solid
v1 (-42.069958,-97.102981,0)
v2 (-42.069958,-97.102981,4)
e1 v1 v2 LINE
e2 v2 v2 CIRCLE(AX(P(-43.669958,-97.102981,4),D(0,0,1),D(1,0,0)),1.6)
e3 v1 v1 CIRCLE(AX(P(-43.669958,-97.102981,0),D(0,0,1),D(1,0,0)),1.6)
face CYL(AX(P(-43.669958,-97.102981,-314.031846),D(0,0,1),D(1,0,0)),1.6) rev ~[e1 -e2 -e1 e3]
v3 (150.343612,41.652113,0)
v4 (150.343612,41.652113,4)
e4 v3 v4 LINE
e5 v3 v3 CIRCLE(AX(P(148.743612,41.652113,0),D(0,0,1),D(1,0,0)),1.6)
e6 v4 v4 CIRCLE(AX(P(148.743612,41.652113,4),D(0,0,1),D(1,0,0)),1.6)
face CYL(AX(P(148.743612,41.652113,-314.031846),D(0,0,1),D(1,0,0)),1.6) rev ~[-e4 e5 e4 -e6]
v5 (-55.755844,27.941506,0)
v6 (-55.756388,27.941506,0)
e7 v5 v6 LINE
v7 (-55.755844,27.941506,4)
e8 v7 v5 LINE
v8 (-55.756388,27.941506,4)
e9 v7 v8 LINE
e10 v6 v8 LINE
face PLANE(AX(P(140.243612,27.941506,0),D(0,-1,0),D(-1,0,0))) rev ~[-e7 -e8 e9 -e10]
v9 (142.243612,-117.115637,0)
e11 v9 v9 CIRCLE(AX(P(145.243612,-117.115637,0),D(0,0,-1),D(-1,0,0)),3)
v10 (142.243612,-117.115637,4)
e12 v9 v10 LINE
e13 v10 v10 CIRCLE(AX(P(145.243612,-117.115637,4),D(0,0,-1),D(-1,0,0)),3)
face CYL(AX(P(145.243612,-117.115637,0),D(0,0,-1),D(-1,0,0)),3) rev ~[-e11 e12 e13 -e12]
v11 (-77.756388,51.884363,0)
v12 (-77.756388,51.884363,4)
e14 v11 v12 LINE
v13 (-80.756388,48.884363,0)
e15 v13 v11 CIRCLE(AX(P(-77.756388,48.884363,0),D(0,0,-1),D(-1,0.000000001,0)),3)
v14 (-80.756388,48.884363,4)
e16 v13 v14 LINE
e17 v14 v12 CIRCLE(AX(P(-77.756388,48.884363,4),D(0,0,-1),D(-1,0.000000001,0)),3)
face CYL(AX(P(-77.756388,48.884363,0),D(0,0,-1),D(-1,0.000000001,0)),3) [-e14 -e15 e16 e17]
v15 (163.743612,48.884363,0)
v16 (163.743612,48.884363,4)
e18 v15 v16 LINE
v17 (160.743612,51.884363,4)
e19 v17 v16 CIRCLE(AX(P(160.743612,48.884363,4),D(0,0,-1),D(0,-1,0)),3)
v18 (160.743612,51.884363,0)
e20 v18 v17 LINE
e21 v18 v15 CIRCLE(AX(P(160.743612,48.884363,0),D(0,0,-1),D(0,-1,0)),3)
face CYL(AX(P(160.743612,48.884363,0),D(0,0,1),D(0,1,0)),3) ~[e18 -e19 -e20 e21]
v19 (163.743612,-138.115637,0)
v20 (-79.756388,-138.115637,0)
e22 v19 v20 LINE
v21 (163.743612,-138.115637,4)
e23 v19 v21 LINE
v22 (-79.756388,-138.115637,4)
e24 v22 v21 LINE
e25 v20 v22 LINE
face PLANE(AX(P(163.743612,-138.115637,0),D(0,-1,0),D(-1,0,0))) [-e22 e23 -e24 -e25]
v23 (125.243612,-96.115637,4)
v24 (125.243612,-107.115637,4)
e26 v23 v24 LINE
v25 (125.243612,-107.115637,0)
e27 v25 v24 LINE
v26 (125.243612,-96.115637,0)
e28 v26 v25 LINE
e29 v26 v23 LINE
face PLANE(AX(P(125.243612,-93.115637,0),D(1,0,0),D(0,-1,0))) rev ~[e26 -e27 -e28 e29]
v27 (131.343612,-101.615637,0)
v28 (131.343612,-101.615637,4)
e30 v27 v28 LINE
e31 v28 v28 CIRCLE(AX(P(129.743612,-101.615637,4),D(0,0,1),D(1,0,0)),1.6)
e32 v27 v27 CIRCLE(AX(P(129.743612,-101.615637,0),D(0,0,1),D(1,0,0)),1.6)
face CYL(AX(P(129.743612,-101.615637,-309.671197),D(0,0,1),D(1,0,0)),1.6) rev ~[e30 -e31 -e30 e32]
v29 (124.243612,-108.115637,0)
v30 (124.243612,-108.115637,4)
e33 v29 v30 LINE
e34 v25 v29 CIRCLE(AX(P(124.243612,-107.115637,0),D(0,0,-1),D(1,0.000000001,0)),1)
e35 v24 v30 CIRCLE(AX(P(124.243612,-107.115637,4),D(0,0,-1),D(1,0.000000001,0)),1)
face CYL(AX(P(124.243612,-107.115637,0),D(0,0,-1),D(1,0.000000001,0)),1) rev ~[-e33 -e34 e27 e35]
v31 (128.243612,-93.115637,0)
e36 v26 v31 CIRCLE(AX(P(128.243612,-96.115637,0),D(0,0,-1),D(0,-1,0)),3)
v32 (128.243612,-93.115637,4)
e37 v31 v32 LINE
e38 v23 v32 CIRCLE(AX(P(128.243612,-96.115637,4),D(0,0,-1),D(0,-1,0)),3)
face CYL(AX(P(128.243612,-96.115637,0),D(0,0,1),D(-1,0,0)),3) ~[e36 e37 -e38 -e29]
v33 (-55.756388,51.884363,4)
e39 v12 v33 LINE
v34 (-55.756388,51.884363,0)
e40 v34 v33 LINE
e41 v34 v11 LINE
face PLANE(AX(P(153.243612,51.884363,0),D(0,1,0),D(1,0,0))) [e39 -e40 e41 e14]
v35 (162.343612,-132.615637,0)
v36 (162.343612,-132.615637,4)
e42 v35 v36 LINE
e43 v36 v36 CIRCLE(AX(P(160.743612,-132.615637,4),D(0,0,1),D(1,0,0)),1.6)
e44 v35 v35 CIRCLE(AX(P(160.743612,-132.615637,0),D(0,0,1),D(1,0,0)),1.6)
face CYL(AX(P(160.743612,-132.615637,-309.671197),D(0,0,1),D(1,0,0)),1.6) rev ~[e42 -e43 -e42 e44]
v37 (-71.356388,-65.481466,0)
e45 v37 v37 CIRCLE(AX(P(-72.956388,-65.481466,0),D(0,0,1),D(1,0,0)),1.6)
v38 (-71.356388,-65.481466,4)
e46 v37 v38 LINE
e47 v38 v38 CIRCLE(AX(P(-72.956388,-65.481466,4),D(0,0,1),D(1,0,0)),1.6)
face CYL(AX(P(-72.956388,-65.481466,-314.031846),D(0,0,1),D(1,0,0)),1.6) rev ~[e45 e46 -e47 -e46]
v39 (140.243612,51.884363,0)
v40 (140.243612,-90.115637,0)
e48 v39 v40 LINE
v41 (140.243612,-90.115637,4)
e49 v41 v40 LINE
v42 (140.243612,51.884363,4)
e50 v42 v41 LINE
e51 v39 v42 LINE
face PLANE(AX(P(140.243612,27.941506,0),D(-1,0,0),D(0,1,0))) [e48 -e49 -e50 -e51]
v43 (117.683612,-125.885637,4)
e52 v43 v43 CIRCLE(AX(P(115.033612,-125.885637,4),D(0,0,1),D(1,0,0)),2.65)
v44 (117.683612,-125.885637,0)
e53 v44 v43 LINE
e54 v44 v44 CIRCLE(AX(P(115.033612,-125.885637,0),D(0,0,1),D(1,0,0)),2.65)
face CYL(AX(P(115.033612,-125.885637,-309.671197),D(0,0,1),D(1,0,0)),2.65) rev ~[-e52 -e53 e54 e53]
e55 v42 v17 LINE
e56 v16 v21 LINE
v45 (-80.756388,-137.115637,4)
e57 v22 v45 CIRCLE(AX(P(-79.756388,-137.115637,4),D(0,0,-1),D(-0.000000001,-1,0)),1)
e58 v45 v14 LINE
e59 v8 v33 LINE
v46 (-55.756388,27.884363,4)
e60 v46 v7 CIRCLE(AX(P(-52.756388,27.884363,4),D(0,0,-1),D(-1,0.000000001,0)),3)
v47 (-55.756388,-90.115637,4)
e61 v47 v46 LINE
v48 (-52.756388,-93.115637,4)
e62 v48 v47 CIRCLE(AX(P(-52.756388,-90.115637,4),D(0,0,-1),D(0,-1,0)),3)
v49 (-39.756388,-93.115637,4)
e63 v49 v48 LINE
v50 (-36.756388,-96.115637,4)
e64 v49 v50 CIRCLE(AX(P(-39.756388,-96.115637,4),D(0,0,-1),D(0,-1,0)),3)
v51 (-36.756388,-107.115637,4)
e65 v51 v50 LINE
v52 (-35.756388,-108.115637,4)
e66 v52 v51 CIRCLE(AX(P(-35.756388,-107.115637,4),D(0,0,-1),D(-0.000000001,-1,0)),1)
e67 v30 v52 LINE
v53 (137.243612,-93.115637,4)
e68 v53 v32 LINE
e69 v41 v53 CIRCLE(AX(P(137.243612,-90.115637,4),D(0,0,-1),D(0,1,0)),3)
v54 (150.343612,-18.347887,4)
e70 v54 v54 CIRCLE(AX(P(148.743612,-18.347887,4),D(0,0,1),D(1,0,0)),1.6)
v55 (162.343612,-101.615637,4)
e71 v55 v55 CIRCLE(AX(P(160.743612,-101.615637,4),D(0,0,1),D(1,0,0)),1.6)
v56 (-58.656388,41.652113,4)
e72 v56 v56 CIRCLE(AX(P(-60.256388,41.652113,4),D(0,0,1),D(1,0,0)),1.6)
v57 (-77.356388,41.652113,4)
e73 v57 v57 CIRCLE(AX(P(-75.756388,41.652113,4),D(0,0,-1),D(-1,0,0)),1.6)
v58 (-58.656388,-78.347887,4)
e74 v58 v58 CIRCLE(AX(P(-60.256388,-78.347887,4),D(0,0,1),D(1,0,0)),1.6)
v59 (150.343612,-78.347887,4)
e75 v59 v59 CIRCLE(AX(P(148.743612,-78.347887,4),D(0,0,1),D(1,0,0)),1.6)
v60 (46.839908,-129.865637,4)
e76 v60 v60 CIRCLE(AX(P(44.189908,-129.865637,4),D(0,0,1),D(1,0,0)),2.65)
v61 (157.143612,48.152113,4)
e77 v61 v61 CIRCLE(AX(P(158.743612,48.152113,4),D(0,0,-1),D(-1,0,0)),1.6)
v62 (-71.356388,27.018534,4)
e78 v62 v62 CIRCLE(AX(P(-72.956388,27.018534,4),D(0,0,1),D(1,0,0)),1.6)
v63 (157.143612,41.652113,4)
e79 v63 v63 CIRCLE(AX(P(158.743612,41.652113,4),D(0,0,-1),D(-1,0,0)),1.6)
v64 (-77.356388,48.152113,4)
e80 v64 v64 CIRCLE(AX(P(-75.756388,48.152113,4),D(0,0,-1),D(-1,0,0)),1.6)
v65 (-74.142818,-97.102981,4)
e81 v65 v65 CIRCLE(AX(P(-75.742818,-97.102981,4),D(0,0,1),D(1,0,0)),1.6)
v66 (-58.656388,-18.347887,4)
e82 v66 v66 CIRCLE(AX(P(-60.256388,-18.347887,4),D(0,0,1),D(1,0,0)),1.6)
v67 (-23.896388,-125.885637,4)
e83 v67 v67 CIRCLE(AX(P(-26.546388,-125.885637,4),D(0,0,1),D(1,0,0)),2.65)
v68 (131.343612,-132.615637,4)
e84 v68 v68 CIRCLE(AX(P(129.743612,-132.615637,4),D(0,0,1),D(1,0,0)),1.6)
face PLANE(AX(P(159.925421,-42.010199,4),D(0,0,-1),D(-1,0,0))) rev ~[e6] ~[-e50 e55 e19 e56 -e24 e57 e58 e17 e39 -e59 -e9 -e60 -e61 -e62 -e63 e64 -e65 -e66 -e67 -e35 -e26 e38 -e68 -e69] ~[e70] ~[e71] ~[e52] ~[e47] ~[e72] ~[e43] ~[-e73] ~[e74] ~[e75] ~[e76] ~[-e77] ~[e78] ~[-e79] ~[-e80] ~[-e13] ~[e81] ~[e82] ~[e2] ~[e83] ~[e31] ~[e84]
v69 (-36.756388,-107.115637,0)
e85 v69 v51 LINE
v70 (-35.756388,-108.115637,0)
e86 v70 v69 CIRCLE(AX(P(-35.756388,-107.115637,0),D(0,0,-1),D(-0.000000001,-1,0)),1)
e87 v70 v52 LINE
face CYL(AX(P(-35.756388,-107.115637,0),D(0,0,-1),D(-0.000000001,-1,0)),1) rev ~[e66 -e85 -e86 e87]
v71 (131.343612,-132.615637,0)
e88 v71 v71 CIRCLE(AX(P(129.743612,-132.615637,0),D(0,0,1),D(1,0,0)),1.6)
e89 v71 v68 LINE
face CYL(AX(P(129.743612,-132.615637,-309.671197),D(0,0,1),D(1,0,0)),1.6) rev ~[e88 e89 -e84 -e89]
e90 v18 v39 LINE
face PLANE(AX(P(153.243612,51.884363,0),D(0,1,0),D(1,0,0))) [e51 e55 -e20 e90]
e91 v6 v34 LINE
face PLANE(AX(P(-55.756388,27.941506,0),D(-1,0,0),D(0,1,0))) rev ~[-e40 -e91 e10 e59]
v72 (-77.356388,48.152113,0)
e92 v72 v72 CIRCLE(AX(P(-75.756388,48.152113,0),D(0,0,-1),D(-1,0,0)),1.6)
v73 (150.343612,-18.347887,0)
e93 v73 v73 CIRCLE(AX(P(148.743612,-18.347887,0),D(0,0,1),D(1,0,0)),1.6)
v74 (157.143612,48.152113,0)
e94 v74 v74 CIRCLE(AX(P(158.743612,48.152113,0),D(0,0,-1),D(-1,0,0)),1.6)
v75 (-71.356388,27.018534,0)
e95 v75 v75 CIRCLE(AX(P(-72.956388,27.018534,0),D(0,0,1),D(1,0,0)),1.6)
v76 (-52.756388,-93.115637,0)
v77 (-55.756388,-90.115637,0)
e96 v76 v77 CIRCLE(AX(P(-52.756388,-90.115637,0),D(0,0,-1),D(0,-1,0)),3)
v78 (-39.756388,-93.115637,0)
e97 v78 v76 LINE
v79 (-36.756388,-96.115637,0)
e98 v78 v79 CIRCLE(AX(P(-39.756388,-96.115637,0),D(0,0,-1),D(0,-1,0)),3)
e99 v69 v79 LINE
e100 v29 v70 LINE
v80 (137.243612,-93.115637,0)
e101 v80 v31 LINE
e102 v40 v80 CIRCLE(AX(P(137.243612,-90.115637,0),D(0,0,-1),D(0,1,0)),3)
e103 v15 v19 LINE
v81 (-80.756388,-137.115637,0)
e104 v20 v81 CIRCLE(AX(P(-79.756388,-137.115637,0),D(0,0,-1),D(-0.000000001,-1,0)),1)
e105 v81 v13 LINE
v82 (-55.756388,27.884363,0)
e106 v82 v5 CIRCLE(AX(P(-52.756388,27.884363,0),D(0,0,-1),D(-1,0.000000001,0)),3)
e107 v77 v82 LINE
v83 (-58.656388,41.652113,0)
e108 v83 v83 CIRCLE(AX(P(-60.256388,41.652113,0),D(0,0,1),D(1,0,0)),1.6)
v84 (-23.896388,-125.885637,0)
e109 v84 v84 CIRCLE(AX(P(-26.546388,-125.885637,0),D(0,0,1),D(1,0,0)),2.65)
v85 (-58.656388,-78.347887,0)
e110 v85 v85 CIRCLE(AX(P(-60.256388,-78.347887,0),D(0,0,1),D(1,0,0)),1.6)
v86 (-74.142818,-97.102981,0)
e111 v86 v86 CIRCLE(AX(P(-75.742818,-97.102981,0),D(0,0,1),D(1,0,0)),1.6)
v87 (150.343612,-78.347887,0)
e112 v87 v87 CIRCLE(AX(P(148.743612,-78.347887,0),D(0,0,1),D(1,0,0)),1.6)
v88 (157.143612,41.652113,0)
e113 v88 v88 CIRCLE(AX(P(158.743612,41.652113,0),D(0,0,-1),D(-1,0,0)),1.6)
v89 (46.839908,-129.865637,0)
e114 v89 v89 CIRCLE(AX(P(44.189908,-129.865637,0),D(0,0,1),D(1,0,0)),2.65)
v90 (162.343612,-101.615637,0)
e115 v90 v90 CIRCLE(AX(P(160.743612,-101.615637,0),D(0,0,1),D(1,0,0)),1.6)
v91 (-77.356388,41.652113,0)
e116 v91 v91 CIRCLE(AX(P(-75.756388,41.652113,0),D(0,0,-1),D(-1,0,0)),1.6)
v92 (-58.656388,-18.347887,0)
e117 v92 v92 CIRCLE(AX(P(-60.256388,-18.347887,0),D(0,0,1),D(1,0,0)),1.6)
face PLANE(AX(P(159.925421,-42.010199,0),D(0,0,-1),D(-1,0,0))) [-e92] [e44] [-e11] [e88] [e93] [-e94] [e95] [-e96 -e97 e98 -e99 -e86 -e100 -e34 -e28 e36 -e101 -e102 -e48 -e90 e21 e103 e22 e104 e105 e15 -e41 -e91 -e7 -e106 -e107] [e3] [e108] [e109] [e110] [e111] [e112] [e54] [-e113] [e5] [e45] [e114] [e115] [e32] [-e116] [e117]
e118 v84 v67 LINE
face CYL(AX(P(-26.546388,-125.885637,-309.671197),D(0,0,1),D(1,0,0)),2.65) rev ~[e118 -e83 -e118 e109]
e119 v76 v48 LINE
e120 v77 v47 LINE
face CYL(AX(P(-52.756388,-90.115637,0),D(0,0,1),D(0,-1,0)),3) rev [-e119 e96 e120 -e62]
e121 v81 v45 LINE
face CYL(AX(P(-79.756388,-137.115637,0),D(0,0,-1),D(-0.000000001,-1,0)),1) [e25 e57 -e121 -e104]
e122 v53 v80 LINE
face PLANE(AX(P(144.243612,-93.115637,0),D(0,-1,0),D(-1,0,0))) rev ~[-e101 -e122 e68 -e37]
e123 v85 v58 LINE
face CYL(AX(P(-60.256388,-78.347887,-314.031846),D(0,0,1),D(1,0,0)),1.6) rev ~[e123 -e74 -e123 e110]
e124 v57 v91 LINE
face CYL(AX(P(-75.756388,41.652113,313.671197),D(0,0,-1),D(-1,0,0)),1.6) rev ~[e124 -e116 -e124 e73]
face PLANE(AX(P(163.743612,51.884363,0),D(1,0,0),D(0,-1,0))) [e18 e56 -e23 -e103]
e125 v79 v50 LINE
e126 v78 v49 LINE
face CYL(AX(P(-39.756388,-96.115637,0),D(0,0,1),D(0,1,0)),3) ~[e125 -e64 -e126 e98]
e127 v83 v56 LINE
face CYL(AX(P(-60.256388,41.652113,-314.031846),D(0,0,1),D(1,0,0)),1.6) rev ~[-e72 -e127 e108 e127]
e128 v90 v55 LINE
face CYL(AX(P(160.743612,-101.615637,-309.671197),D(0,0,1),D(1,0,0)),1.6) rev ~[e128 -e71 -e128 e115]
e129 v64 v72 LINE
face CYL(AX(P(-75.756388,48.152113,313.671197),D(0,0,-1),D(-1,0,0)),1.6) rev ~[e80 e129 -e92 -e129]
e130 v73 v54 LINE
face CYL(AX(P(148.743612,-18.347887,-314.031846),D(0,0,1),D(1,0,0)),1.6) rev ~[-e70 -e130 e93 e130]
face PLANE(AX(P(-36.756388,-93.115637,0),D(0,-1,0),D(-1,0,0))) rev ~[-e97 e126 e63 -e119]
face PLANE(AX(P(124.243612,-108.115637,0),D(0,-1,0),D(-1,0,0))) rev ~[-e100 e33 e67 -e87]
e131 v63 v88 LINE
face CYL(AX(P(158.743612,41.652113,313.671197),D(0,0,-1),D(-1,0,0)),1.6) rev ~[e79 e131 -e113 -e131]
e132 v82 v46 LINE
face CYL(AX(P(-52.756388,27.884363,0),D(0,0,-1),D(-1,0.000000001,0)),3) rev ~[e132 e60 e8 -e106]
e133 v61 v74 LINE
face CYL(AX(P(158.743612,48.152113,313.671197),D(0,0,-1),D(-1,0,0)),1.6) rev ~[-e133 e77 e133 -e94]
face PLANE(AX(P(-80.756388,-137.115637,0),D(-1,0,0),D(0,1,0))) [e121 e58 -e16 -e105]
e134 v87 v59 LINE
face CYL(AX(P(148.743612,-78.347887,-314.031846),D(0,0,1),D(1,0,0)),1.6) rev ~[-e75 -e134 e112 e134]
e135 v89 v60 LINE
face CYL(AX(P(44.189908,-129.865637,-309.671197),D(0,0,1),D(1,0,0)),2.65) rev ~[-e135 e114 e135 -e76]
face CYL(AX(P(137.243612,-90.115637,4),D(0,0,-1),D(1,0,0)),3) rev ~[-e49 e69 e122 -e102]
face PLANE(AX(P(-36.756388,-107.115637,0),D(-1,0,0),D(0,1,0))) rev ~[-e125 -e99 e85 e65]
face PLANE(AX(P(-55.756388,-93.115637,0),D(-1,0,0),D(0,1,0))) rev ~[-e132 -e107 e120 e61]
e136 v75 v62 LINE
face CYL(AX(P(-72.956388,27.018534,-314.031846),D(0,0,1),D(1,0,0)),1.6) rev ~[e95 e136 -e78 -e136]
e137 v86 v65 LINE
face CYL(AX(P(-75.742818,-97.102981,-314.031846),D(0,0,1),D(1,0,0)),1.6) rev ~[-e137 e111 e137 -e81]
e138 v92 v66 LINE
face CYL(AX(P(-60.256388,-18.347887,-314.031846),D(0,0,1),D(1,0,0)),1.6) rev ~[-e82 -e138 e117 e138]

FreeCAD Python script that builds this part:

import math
import FreeCAD as App
import Part
import Sketcher

V = App.Vector


def edges_at(feature, points):
    """Names of the edges that pass closest to the given points."""
    edges = feature.Shape.Edges
    near = lambda p: min(range(len(edges)), key=lambda i: edges[i].distToShape(Part.Vertex(*p))[0])
    return sorted({f"Edge{near(p) + 1}" for p in points})


def add_polygon(sketch, points):
    """Adds a closed chain of lines whose ends are joined by coincident constraints."""
    first, n = sketch.GeometryCount, len(points)
    for a, b in zip(points, points[1:] + points[:1]):
        sketch.addGeometry(Part.LineSegment(App.Vector(*a, 0), App.Vector(*b, 0)), False)
    for i in range(n):
        sketch.addConstraint(Sketcher.Constraint("Coincident", first + i, 2, first + (i + 1) % n, 1))

doc = App.newDocument("Part")
params = doc.addObject("Spreadsheet::Sheet", "Params")
for row, (alias, value) in enumerate([
    ("sketch1_radius", "1 mm"),
    ("sketch1_radius2", "3 mm"),
    ("sketch1_width", "248 mm"),
    ("sketch1_width2", "19 mm"),
    ("sketch1_width3", "194 mm"),
    ("pad1_length", "4 mm"),
    ("sketch2_diameter", "3.2 mm"),
    ("hole_diameter", "3.2 mm"),
    ("fillet_radius", "3 mm"),
    ("sketch3_diameter", "3.2 mm"),
    ("hole2_diameter", "3.2 mm"),
    ("sketch4_diameter", "2.87 mm"),
    ("hole3_diameter", "2.87 mm"),
    ("sketch5_diameter", "3.2 mm"),
    ("hole4_diameter", "3.2 mm"),
    ("sketch6_height", "190 mm"),
    ("pocket1_length", "10 mm"),
    ("sketch7_radius", "3 mm"),
    ("pad2_length", "4 mm"),
    ("fillet2_radius", "3 mm"),
    ("sketch8_radius", "3 mm"),
    ("sketch8_height", "187 mm"),
    ("sketch8_width", "10.5 mm"),
    ("pad3_length", "4 mm"),
    ("sketch9_diameter", "3.2 mm"),
    ("hole5_diameter", "3.2 mm"),
    ("fillet3_radius", "3 mm"),
    ("sketch10_diameter", "5.3 mm"),
    ("hole6_diameter", "5.3 mm"),
    ("sketch11_diameter", "6 mm"),
    ("sketch12_width", "196 mm"),
    ("pocket3_length", "5 mm"),
    ("sketch13_diameter", "3.2 mm"),
    ("hole7_diameter", "3.2 mm"),
], start=1):
    params.set(f"A{row}", alias)
    params.set(f"B{row}", "=" + value)
    params.setAlias(f"B{row}", alias)

body = doc.addObject("PartDesign::Body", "Body")

sketch1 = body.newObject("Sketcher::SketchObject", "Sketch")
sketch1.AttachmentSupport = (doc.getObject("XY_Plane"), [""])
sketch1.MapMode = "FlatFace"
sketch1.addGeometry(Part.LineSegment(V(-79.756388, -138.115637, 0), V(168.243612, -138.115637, 0)), False)
sketch1.addGeometry(Part.ArcOfCircle(Part.Circle(V(168.243612, -137.115637, 0), V(0, 0, 1), 1), math.radians(-90), math.radians(0)), False)
sketch1.addGeometry(Part.LineSegment(V(169.243612, -137.115637, 0), V(169.243612, 48.884363, 0)), False)
sketch1.addGeometry(Part.ArcOfCircle(Part.Circle(V(166.243612, 48.884363, 0), V(0, 0, 1), 3), math.radians(0), math.radians(90)), False)
sketch1.addGeometry(Part.LineSegment(V(166.243612, 51.884363, 0), V(-77.756388, 51.884363, 0)), False)
sketch1.addGeometry(Part.ArcOfCircle(Part.Circle(V(-77.756388, 48.884363, 0), V(0, 0, 1), 3), math.radians(90), math.radians(180)), False)
sketch1.addGeometry(Part.LineSegment(V(-80.756388, 48.884363, 0), V(-80.756388, -137.115637, 0)), False)
sketch1.addGeometry(Part.ArcOfCircle(Part.Circle(V(-79.756388, -137.115637, 0), V(0, 0, 1), 1), math.radians(-180), math.radians(-90)), False)
sketch1.addGeometry(Part.LineSegment(V(-36.756388, -93.115637, 0), V(-55.756388, -93.115637, 0)), False)
sketch1.addGeometry(Part.LineSegment(V(-55.756388, -93.115637, 0), V(-55.756388, 27.884363, 0)), False)
sketch1.addGeometry(Part.ArcOfCircle(Part.Circle(V(-52.756388, 27.884363, 0), V(0, 0, 1), 3), math.radians(90), math.radians(180)), False)
sketch1.addGeometry(Part.LineSegment(V(-52.756388, 30.884363, 0), V(141.243612, 30.884363, 0)), False)
sketch1.addGeometry(Part.ArcOfCircle(Part.Circle(V(141.243612, 27.884363, 0), V(0, 0, 1), 3), math.radians(0), math.radians(90)), False)
sketch1.addGeometry(Part.LineSegment(V(144.243612, 27.884363, 0), V(144.243612, -93.115637, 0)), False)
sketch1.addGeometry(Part.LineSegment(V(144.243612, -93.115637, 0), V(125.243612, -93.115637, 0)), False)
sketch1.addGeometry(Part.LineSegment(V(125.243612, -93.115637, 0), V(125.243612, -107.115637, 0)), False)
sketch1.addGeometry(Part.ArcOfCircle(Part.Circle(V(124.243612, -107.115637, 0), V(0, 0, 1), 1), math.radians(-90), math.radians(0)), False)
sketch1.addGeometry(Part.LineSegment(V(124.243612, -108.115637, 0), V(-35.756388, -108.115637, 0)), False)
sketch1.addGeometry(Part.ArcOfCircle(Part.Circle(V(-35.756388, -107.115637, 0), V(0, 0, 1), 1), math.radians(-180), math.radians(-90)), False)
sketch1.addGeometry(Part.LineSegment(V(-36.756388, -107.115637, 0), V(-36.756388, -93.115637, 0)), False)
sketch1.addConstraint(Sketcher.Constraint("Tangent", 0, 2, 1, 1))
sketch1.addConstraint(Sketcher.Constraint("Tangent", 1, 2, 2, 1))
sketch1.addConstraint(Sketcher.Constraint("Tangent", 2, 2, 3, 1))
sketch1.addConstraint(Sketcher.Constraint("Tangent", 3, 2, 4, 1))
sketch1.addConstraint(Sketcher.Constraint("Tangent", 4, 2, 5, 1))
sketch1.addConstraint(Sketcher.Constraint("Tangent", 5, 2, 6, 1))
sketch1.addConstraint(Sketcher.Constraint("Tangent", 6, 2, 7, 1))
sketch1.addConstraint(Sketcher.Constraint("Tangent", 7, 2, 0, 1))
sketch1.addConstraint(Sketcher.Constraint("Coincident", 8, 2, 9, 1))
sketch1.addConstraint(Sketcher.Constraint("Tangent", 9, 2, 10, 2))
sketch1.addConstraint(Sketcher.Constraint("Tangent", 10, 1, 11, 1))
sketch1.addConstraint(Sketcher.Constraint("Tangent", 11, 2, 12, 2))
sketch1.addConstraint(Sketcher.Constraint("Tangent", 12, 1, 13, 1))
sketch1.addConstraint(Sketcher.Constraint("Coincident", 13, 2, 14, 1))
sketch1.addConstraint(Sketcher.Constraint("Coincident", 14, 2, 15, 1))
sketch1.addConstraint(Sketcher.Constraint("Tangent", 15, 2, 16, 2))
sketch1.addConstraint(Sketcher.Constraint("Tangent", 16, 1, 17, 1))
sketch1.addConstraint(Sketcher.Constraint("Tangent", 17, 2, 18, 2))
sketch1.addConstraint(Sketcher.Constraint("Tangent", 18, 1, 19, 1))
sketch1.addConstraint(Sketcher.Constraint("Coincident", 19, 2, 8, 1))
sketch1.addConstraint(Sketcher.Constraint("Horizontal", 0))
sketch1.addConstraint(Sketcher.Constraint("Vertical", 2))
sketch1.addConstraint(Sketcher.Constraint("Horizontal", 4))
sketch1.addConstraint(Sketcher.Constraint("Vertical", 6))
sketch1.addConstraint(Sketcher.Constraint("Horizontal", 8))
sketch1.addConstraint(Sketcher.Constraint("Vertical", 9))
sketch1.addConstraint(Sketcher.Constraint("Horizontal", 11))
sketch1.addConstraint(Sketcher.Constraint("Vertical", 13))
sketch1.addConstraint(Sketcher.Constraint("Horizontal", 14))
sketch1.addConstraint(Sketcher.Constraint("Vertical", 15))
sketch1.addConstraint(Sketcher.Constraint("Horizontal", 17))
sketch1.addConstraint(Sketcher.Constraint("Vertical", 19))
sketch1.addConstraint(Sketcher.Constraint("Equal", 3, 5))
sketch1.addConstraint(Sketcher.Constraint("Equal", 1, 7))
sketch1.addConstraint(Sketcher.Constraint("Equal", 5, 10))
sketch1.addConstraint(Sketcher.Constraint("Equal", 10, 12))
sketch1.addConstraint(Sketcher.Constraint("Equal", 7, 16))
sketch1.addConstraint(Sketcher.Constraint("Equal", 16, 18))
sketch1.addConstraint(Sketcher.Constraint("Horizontal", 8, 2, 13, 2))
sketch1.addConstraint(Sketcher.Constraint("Equal", 8, 14))
sketch1.addConstraint(Sketcher.Constraint("Radius", 1, 1.0))
sketch1.addConstraint(Sketcher.Constraint("Radius", 3, 3.0))
sketch1.addConstraint(Sketcher.Constraint("DistanceX", 0, 1, 0, 2, 248.0))
sketch1.addConstraint(Sketcher.Constraint("DistanceX", 8, 2, 8, 1, 19.0))
sketch1.addConstraint(Sketcher.Constraint("DistanceX", 11, 1, 11, 2, 194.0))
sketch1.addConstraint(Sketcher.Constraint("DistanceY", 2, 1, 2, 2, 186.0))
sketch1.addConstraint(Sketcher.Constraint("DistanceY", 9, 1, 9, 2, 121.0))
sketch1.addConstraint(Sketcher.Constraint("DistanceY", 15, 2, 15, 1, 14.0))
sketch1.addConstraint(Sketcher.Constraint("DistanceX", 5, 3, 10, 3, 25.0))
sketch1.addConstraint(Sketcher.Constraint("DistanceY", 10, 3, 5, 3, 21.0))
sketch1.addConstraint(Sketcher.Constraint("DistanceX", -1, 1, 1, 3, 168.243612))
sketch1.addConstraint(Sketcher.Constraint("DistanceY", 1, 3, -1, 1, 137.115637))
sketch1.setExpression("Constraints[40]", "Params.sketch1_radius")
sketch1.setExpression("Constraints[41]", "Params.sketch1_radius2")
sketch1.setExpression("Constraints[42]", "Params.sketch1_width")
sketch1.setExpression("Constraints[43]", "Params.sketch1_width2")
sketch1.setExpression("Constraints[44]", "Params.sketch1_width3")
pad1 = body.newObject("PartDesign::Pad", "Pad")
pad1.Profile = sketch1
pad1.setExpression("Length", "Params.pad1_length")

sketch2 = body.newObject("Sketcher::SketchObject", "Sketch001")
sketch2.AttachmentSupport = (doc.getObject("XY_Plane"), [""])
sketch2.MapMode = "FlatFace"
sketch2.addGeometry(Part.Circle(V(148.743612, -78.347887, 0), V(0, 0, 1), 1.6), False)
sketch2.addGeometry(Part.Circle(V(148.743612, -18.347887, 0), V(0, 0, 1), 1.6), False)
sketch2.addGeometry(Part.Circle(V(148.743612, 41.652113, 0), V(0, 0, 1), 1.6), False)
sketch2.addGeometry(Part.Circle(V(-60.256388, 41.652113, 0), V(0, 0, 1), 1.6), False)
sketch2.addGeometry(Part.Circle(V(-60.256388, -18.347887, 0), V(0, 0, 1), 1.6), False)
sketch2.addGeometry(Part.Circle(V(-60.256388, -78.347887, 0), V(0, 0, 1), 1.6), False)
sketch2.addGeometry(Part.Circle(V(-72.956388, 27.018534, 0), V(0, 0, 1), 1.6), False)
sketch2.addGeometry(Part.Circle(V(-72.956388, -65.481466, 0), V(0, 0, 1), 1.6), False)
sketch2.addGeometry(Part.Circle(V(-19.656388, -65.481466, 0), V(0, 0, 1), 1.6), False)
sketch2.addGeometry(Part.Circle(V(-19.656388, 27.018534, 0), V(0, 0, 1), 1.6), False)
sketch2.addConstraint(Sketcher.Constraint("Equal", 0, 1))
sketch2.addConstraint(Sketcher.Constraint("Equal", 1, 2))
sketch2.addConstraint(Sketcher.Constraint("Equal", 2, 3))
sketch2.addConstraint(Sketcher.Constraint("Equal", 3, 4))
sketch2.addConstraint(Sketcher.Constraint("Equal", 4, 5))
sketch2.addConstraint(Sketcher.Constraint("Equal", 5, 6))
sketch2.addConstraint(Sketcher.Constraint("Equal", 6, 7))
sketch2.addConstraint(Sketcher.Constraint("Equal", 7, 8))
sketch2.addConstraint(Sketcher.Constraint("Equal", 8, 9))
sketch2.addConstraint(Sketcher.Constraint("Horizontal", 2, 3, 3, 3))
sketch2.addConstraint(Sketcher.Constraint("Horizontal", 1, 3, 4, 3))
sketch2.addConstraint(Sketcher.Constraint("Horizontal", 0, 3, 5, 3))
sketch2.addConstraint(Sketcher.Constraint("Horizontal", 7, 3, 8, 3))
sketch2.addConstraint(Sketcher.Constraint("Horizontal", 6, 3, 9, 3))
sketch2.addConstraint(Sketcher.Constraint("Vertical", 0, 3, 1, 3))
sketch2.addConstraint(Sketcher.Constraint("Vertical", 1, 3, 2, 3))
sketch2.addConstraint(Sketcher.Constraint("Vertical", 3, 3, 4, 3))
sketch2.addConstraint(Sketcher.Constraint("Vertical", 4, 3, 5, 3))
sketch2.addConstraint(Sketcher.Constraint("Vertical", 6, 3, 7, 3))
sketch2.addConstraint(Sketcher.Constraint("Vertical", 8, 3, 9, 3))
sketch2.addConstraint(Sketcher.Constraint("Diameter", 0, 3.2))
sketch2.addConstraint(Sketcher.Constraint("DistanceY", 0, 3, 1, 3, 60.0))
sketch2.addConstraint(Sketcher.Constraint("DistanceY", 1, 3, 2, 3, 60.0))
sketch2.addConstraint(Sketcher.Constraint("DistanceX", 3, 3, 2, 3, 209.0))
sketch2.addConstraint(Sketcher.Constraint("DistanceX", 6, 3, 3, 3, 12.7))
sketch2.addConstraint(Sketcher.Constraint("DistanceY", 7, 3, 6, 3, 92.5))
sketch2.addConstraint(Sketcher.Constraint("DistanceX", 5, 3, 8, 3, 40.6))
sketch2.addConstraint(Sketcher.Constraint("DistanceY", 6, 3, 3, 3, 14.63358))
sketch2.addConstraint(Sketcher.Constraint("DistanceX", -1, 1, 0, 3, 148.743612))
sketch2.addConstraint(Sketcher.Constraint("DistanceY", 0, 3, -1, 1, 78.347887))
sketch2.setExpression("Constraints[20]", "Params.sketch2_diameter")
doc.recompute()
hole = body.newObject("PartDesign::Hole", "Hole")
hole.Profile = sketch2
hole.ThreadType = "None"
hole.setExpression("Diameter", "Params.hole_diameter")
hole.DepthType = "ThroughAll"
hole.Reversed = True
doc.recompute()

fillet = body.newObject("PartDesign::Fillet", "Fillet")
fillet.Base = (hole, edges_at(hole, [
    (-55.756, -93.116, 2),
    (-36.756, -93.116, 2),
    (125.244, -93.116, 2),
    (144.244, -93.116, 2),
]))
fillet.setExpression("Radius", "Params.fillet_radius")

sketch3 = body.newObject("Sketcher::SketchObject", "Sketch002")
sketch3.AttachmentSupport = (doc.getObject("XY_Plane"), [""])
sketch3.MapMode = "FlatFace"
sketch3.addGeometry(Part.Circle(V(164.230042, -97.102981, 0), V(0, 0, 1), 1.6), False)
sketch3.addGeometry(Part.Circle(V(-43.669958, -97.102981, 0), V(0, 0, 1), 1.6), False)
sketch3.addGeometry(Part.Circle(V(-75.742818, -97.102981, 0), V(0, 0, 1), 1.6), False)
sketch3.addConstraint(Sketcher.Constraint("Equal", 0, 1))
sketch3.addConstraint(Sketcher.Constraint("Equal", 1, 2))
sketch3.addConstraint(Sketcher.Constraint("Horizontal", 0, 3, 1, 3))
sketch3.addConstraint(Sketcher.Constraint("Horizontal", 1, 3, 2, 3))
sketch3.addConstraint(Sketcher.Constraint("Diameter", 0, 3.2))
sketch3.addConstraint(Sketcher.Constraint("DistanceX", 1, 3, 0, 3, 207.9))
sketch3.addConstraint(Sketcher.Constraint("DistanceX", -1, 1, 0, 3, 164.230042))
sketch3.addConstraint(Sketcher.Constraint("DistanceY", 0, 3, -1, 1, 97.102981))
sketch3.addConstraint(Sketcher.Constraint("DistanceX", 2, 3, 1, 3, 32.072859))
sketch3.setExpression("Constraints[4]", "Params.sketch3_diameter")
doc.recompute()
hole2 = body.newObject("PartDesign::Hole", "Hole001")
hole2.Profile = sketch3
hole2.ThreadType = "None"
hole2.setExpression("Diameter", "Params.hole2_diameter")
hole2.DepthType = "ThroughAll"
hole2.Reversed = True

sketch4 = body.newObject("Sketcher::SketchObject", "Sketch003")
sketch4.AttachmentSupport = (doc.getObject("XY_Plane"), [""])
sketch4.MapMode = "FlatFace"
sketch4.AttachmentOffset = App.Placement(V(0, 0, 4), App.Rotation())
sketch4.addGeometry(Part.Circle(V(44.243612, 46.987146, 0), V(0, 0, 1), 1.435), False)
sketch4.addConstraint(Sketcher.Constraint("Diameter", 0, 2.87))
sketch4.addConstraint(Sketcher.Constraint("DistanceX", -1, 1, 0, 3, 44.243612))
sketch4.addConstraint(Sketcher.Constraint("DistanceY", -1, 1, 0, 3, 46.987146))
sketch4.setExpression("Constraints[0]", "Params.sketch4_diameter")
doc.recompute()
hole3 = body.newObject("PartDesign::Hole", "Hole002")
hole3.Profile = sketch4
hole3.ThreadType = "None"
hole3.setExpression("Diameter", "Params.hole3_diameter")
hole3.DepthType = "ThroughAll"

sketch5 = body.newObject("Sketcher::SketchObject", "Sketch004")
sketch5.AttachmentSupport = (doc.getObject("XY_Plane"), [""])
sketch5.MapMode = "FlatFace"
sketch5.AttachmentOffset = App.Placement(V(0, 0, 4), App.Rotation())
sketch5.addGeometry(Part.Circle(V(161.560317, 35.480164, 0), V(0, 0, 1), 1.6), False)
sketch5.addGeometry(Part.Circle(V(161.560317, 4.480164, 0), V(0, 0, 1), 1.6), False)
sketch5.addConstraint(Sketcher.Constraint("Equal", 0, 1))
sketch5.addConstraint(Sketcher.Constraint("Vertical", 0, 3, 1, 3))
sketch5.addConstraint(Sketcher.Constraint("Diameter", 0, 3.2))
sketch5.addConstraint(Sketcher.Constraint("DistanceY", 1, 3, 0, 3, 31.0))
sketch5.addConstraint(Sketcher.Constraint("DistanceX", -1, 1, 0, 3, 161.560317))
sketch5.addConstraint(Sketcher.Constraint("DistanceY", -1, 1, 0, 3, 35.480164))
sketch5.setExpression("Constraints[2]", "Params.sketch5_diameter")
doc.recompute()
hole4 = body.newObject("PartDesign::Hole", "Hole003")
hole4.Profile = sketch5
hole4.ThreadType = "None"
hole4.setExpression("Diameter", "Params.hole4_diameter")
hole4.DepthType = "ThroughAll"

sketch6 = body.newObject("Sketcher::SketchObject", "Sketch005")
sketch6.AttachmentSupport = (doc.getObject("XY_Plane"), [""])
sketch6.MapMode = "FlatFace"
sketch6.AttachmentOffset = App.Placement(V(0, 0, 4), App.Rotation())
add_polygon(sketch6, [(156.243612, 51.884363), (156.243612, -138.115637), (183.674236, -138.115637), (183.674236, 51.884363)])
sketch6.addConstraint(Sketcher.Constraint("Vertical", 0))
sketch6.addConstraint(Sketcher.Constraint("Horizontal", 1))
sketch6.addConstraint(Sketcher.Constraint("Vertical", 2))
sketch6.addConstraint(Sketcher.Constraint("Horizontal", 3))
sketch6.addConstraint(Sketcher.Constraint("DistanceY", 0, 2, 0, 1, 190.0))
sketch6.addConstraint(Sketcher.Constraint("DistanceX", 1, 1, 1, 2, 27.430624))
sketch6.addConstraint(Sketcher.Constraint("DistanceX", -1, 1, 0, 2, 156.243612))
sketch6.addConstraint(Sketcher.Constraint("DistanceY", 0, 2, -1, 1, 138.115637))
sketch6.setExpression("Constraints[8]", "Params.sketch6_height")
pocket1 = body.newObject("PartDesign::Pocket", "Pocket")
pocket1.Profile = sketch6
pocket1.setExpression("Length", "Params.pocket1_length")

sketch7 = body.newObject("Sketcher::SketchObject", "Sketch006")
sketch7.AttachmentSupport = (doc.getObject("XY_Plane"), [""])
sketch7.MapMode = "FlatFace"
sketch7.addGeometry(Part.LineSegment(V(145.240286, -97.500156, 0), V(140.243612, -97.500156, 0)), False)
sketch7.addGeometry(Part.LineSegment(V(140.243612, -97.500156, 0), V(140.243612, 27.941506, 0)), False)
sketch7.addGeometry(Part.ArcOfCircle(Part.Circle(V(137.244156, 27.884363, 0), V(0, 0, 1), 3), math.radians(1.091417), math.radians(90.000008)), False)
sketch7.addGeometry(Part.LineSegment(V(137.244156, 30.884363, 0), V(145.240286, 30.884363, 0)), False)
sketch7.addGeometry(Part.LineSegment(V(145.240286, 30.884363, 0), V(145.240286, -97.500156, 0)), False)
sketch7.addConstraint(Sketcher.Constraint("Coincident", 0, 2, 1, 1))
sketch7.addConstraint(Sketcher.Constraint("Coincident", 1, 2, 2, 1))
sketch7.addConstraint(Sketcher.Constraint("Coincident", 2, 2, 3, 1))
sketch7.addConstraint(Sketcher.Constraint("Coincident", 3, 2, 4, 1))
sketch7.addConstraint(Sketcher.Constraint("Coincident", 4, 2, 0, 1))
sketch7.addConstraint(Sketcher.Constraint("Horizontal", 0))
sketch7.addConstraint(Sketcher.Constraint("Vertical", 1))
sketch7.addConstraint(Sketcher.Constraint("Horizontal", 3))
sketch7.addConstraint(Sketcher.Constraint("Vertical", 4))
sketch7.addConstraint(Sketcher.Constraint("Radius", 2, 3.0))
sketch7.addConstraint(Sketcher.Constraint("DistanceX", 3, 1, 3, 2, 7.99613))
sketch7.addConstraint(Sketcher.Constraint("DistanceY", 4, 2, 4, 1, 128.384519))
sketch7.addConstraint(Sketcher.Constraint("DistanceX", 0, 2, 0, 1, 4.996673))
sketch7.addConstraint(Sketcher.Constraint("DistanceY", 1, 1, 1, 2, 125.441662))
sketch7.addConstraint(Sketcher.Constraint("DistanceX", -1, 1, 2, 3, 137.244156))
sketch7.addConstraint(Sketcher.Constraint("DistanceY", -1, 1, 2, 3, 27.884363))
sketch7.setExpression("Constraints[9]", "Params.sketch7_radius")
pad2 = body.newObject("PartDesign::Pad", "Pad001")
pad2.Profile = sketch7
pad2.setExpression("Length", "Params.pad2_length")
doc.recompute()

fillet2 = body.newObject("PartDesign::Fillet", "Fillet001")
fillet2.Base = (pad2, edges_at(pad2, [(156.244, 51.884, 2)]))
fillet2.setExpression("Radius", "Params.fillet2_radius")

sketch8 = body.newObject("Sketcher::SketchObject", "Sketch007")
sketch8.AttachmentSupport = (doc.getObject("XY_Plane"), [""])
sketch8.MapMode = "FlatFace"
sketch8.addGeometry(Part.LineSegment(V(156.243612, -138.115637, 0), V(156.243612, 48.884363, 0)), False)
sketch8.addGeometry(Part.ArcOfCircle(Part.Circle(V(153.243612, 48.884363, 0), V(0, 0, 1), 3), math.radians(0), math.radians(90)), False)
sketch8.addGeometry(Part.LineSegment(V(153.243612, 51.884363, 0), V(163.743612, 51.884363, 0)), False)
sketch8.addGeometry(Part.LineSegment(V(163.743612, 51.884363, 0), V(163.743612, -138.115637, 0)), False)
sketch8.addGeometry(Part.LineSegment(V(163.743612, -138.115637, 0), V(156.243612, -138.115637, 0)), False)
sketch8.addConstraint(Sketcher.Constraint("Tangent", 0, 2, 1, 1))
sketch8.addConstraint(Sketcher.Constraint("Tangent", 1, 2, 2, 1))
sketch8.addConstraint(Sketcher.Constraint("Coincident", 2, 2, 3, 1))
sketch8.addConstraint(Sketcher.Constraint("Coincident", 3, 2, 4, 1))
sketch8.addConstraint(Sketcher.Constraint("Coincident", 4, 2, 0, 1))
sketch8.addConstraint(Sketcher.Constraint("Vertical", 0))
sketch8.addConstraint(Sketcher.Constraint("Horizontal", 2))
sketch8.addConstraint(Sketcher.Constraint("Vertical", 3))
sketch8.addConstraint(Sketcher.Constraint("Horizontal", 4))
sketch8.addConstraint(Sketcher.Constraint("Radius", 1, 3.0))
sketch8.addConstraint(Sketcher.Constraint("DistanceY", 0, 1, 0, 2, 187.0))
sketch8.addConstraint(Sketcher.Constraint("DistanceX", 2, 1, 2, 2, 10.5))
sketch8.addConstraint(Sketcher.Constraint("DistanceX", -1, 1, 1, 3, 153.243612))
sketch8.addConstraint(Sketcher.Constraint("DistanceY", -1, 1, 1, 3, 48.884363))
sketch8.setExpression("Constraints[9]", "Params.sketch8_radius")
sketch8.setExpression("Constraints[10]", "Params.sketch8_height")
sketch8.setExpression("Constraints[11]", "Params.sketch8_width")
pad3 = body.newObject("PartDesign::Pad", "Pad002")
pad3.Profile = sketch8
pad3.setExpression("Length", "Params.pad3_length")

sketch9 = body.newObject("Sketcher::SketchObject", "Sketch008")
sketch9.AttachmentSupport = (doc.getObject("XY_Plane"), [""])
sketch9.MapMode = "FlatFace"
sketch9.addGeometry(Part.Circle(V(160.743612, -101.615637, 0), V(0, 0, 1), 1.6), False)
sketch9.addGeometry(Part.Circle(V(160.743612, -132.615637, 0), V(0, 0, 1), 1.6), False)
sketch9.addGeometry(Part.Circle(V(129.743612, -132.615637, 0), V(0, 0, 1), 1.6), False)
sketch9.addGeometry(Part.Circle(V(129.743612, -101.615637, 0), V(0, 0, 1), 1.6), False)
sketch9.addConstraint(Sketcher.Constraint("Equal", 0, 1))
sketch9.addConstraint(Sketcher.Constraint("Equal", 1, 2))
sketch9.addConstraint(Sketcher.Constraint("Equal", 2, 3))
sketch9.addConstraint(Sketcher.Constraint("Horizontal", 1, 3, 2, 3))
sketch9.addConstraint(Sketcher.Constraint("Horizontal", 0, 3, 3, 3))
sketch9.addConstraint(Sketcher.Constraint("Vertical", 0, 3, 1, 3))
sketch9.addConstraint(Sketcher.Constraint("Vertical", 2, 3, 3, 3))
sketch9.addConstraint(Sketcher.Constraint("Diameter", 0, 3.2))
sketch9.addConstraint(Sketcher.Constraint("DistanceY", 1, 3, 0, 3, 31.0))
sketch9.addConstraint(Sketcher.Constraint("DistanceX", 2, 3, 1, 3, 31.0))
sketch9.addConstraint(Sketcher.Constraint("DistanceX", -1, 1, 0, 3, 160.743612))
sketch9.addConstraint(Sketcher.Constraint("DistanceY", 0, 3, -1, 1, 101.615637))
sketch9.setExpression("Constraints[7]", "Params.sketch9_diameter")
doc.recompute()
hole5 = body.newObject("PartDesign::Hole", "Hole004")
hole5.Profile = sketch9
hole5.ThreadType = "None"
hole5.setExpression("Diameter", "Params.hole5_diameter")
hole5.DepthType = "ThroughAll"
hole5.Reversed = True
doc.recompute()

fillet3 = body.newObject("PartDesign::Fillet", "Fillet002")
fillet3.Base = (hole5, edges_at(hole5, [(140.244, -93.116, 2), (163.744, 51.884, 2)]))
fillet3.setExpression("Radius", "Params.fillet3_radius")

sketch10 = body.newObject("Sketcher::SketchObject", "Sketch009")
sketch10.AttachmentSupport = (doc.getObject("XY_Plane"), [""])
sketch10.MapMode = "FlatFace"
sketch10.addGeometry(Part.Circle(V(115.033612, -125.885637, 0), V(0, 0, 1), 2.65), False)
sketch10.addGeometry(Part.Circle(V(-26.546388, -125.885637, 0), V(0, 0, 1), 2.65), False)
sketch10.addGeometry(Part.Circle(V(44.189908, -129.865637, 0), V(0, 0, 1), 2.65), False)
sketch10.addConstraint(Sketcher.Constraint("Equal", 0, 1))
sketch10.addConstraint(Sketcher.Constraint("Equal", 1, 2))
sketch10.addConstraint(Sketcher.Constraint("Horizontal", 0, 3, 1, 3))
sketch10.addConstraint(Sketcher.Constraint("Diameter", 0, 5.3))
sketch10.addConstraint(Sketcher.Constraint("DistanceX", 1, 3, 0, 3, 141.58))
sketch10.addConstraint(Sketcher.Constraint("DistanceY", 2, 3, 1, 3, 3.98))
sketch10.addConstraint(Sketcher.Constraint("DistanceX", -1, 1, 0, 3, 115.033612))
sketch10.addConstraint(Sketcher.Constraint("DistanceY", 0, 3, -1, 1, 125.885637))
sketch10.addConstraint(Sketcher.Constraint("DistanceX", -1, 1, 2, 3, 44.189908))
sketch10.setExpression("Constraints[3]", "Params.sketch10_diameter")
doc.recompute()
hole6 = body.newObject("PartDesign::Hole", "Hole005")
hole6.Profile = sketch10
hole6.ThreadType = "None"
hole6.setExpression("Diameter", "Params.hole6_diameter")
hole6.DepthType = "ThroughAll"
hole6.Reversed = True

sketch11 = body.newObject("Sketcher::SketchObject", "Sketch010")
sketch11.AttachmentSupport = (doc.getObject("XY_Plane"), [""])
sketch11.MapMode = "FlatFace"
sketch11.addGeometry(Part.Circle(V(145.243612, -117.115637, 0), V(0, 0, 1), 3), False)
sketch11.addConstraint(Sketcher.Constraint("Diameter", 0, 6.0))
sketch11.addConstraint(Sketcher.Constraint("DistanceX", -1, 1, 0, 3, 145.243612))
sketch11.addConstraint(Sketcher.Constraint("DistanceY", 0, 3, -1, 1, 117.115637))
sketch11.setExpression("Constraints[0]", "Params.sketch11_diameter")
pocket2 = body.newObject("PartDesign::Pocket", "Pocket001")
pocket2.Profile = sketch11
pocket2.Type = "ThroughAll"
pocket2.Reversed = True

sketch12 = body.newObject("Sketcher::SketchObject", "Sketch011")
sketch12.AttachmentSupport = (doc.getObject("XY_Plane"), [""])
sketch12.MapMode = "FlatFace"
add_polygon(sketch12, [(140.243612, 51.884363), (140.243612, 27.941506), (-55.756388, 27.941506), (-55.756388, 51.884363)])
sketch12.addConstraint(Sketcher.Constraint("Vertical", 0))
sketch12.addConstraint(Sketcher.Constraint("Horizontal", 1))
sketch12.addConstraint(Sketcher.Constraint("Vertical", 2))
sketch12.addConstraint(Sketcher.Constraint("Horizontal", 3))
sketch12.addConstraint(Sketcher.Constraint("DistanceX", 1, 2, 1, 1, 196.0))
sketch12.addConstraint(Sketcher.Constraint("DistanceY", 0, 2, 0, 1, 23.942857))
sketch12.addConstraint(Sketcher.Constraint("DistanceX", -1, 1, 0, 2, 140.243612))
sketch12.addConstraint(Sketcher.Constraint("DistanceY", -1, 1, 0, 2, 27.941506))
sketch12.setExpression("Constraints[8]", "Params.sketch12_width")
pocket3 = body.newObject("PartDesign::Pocket", "Pocket002")
pocket3.Profile = sketch12
pocket3.setExpression("Length", "Params.pocket3_length")
pocket3.Reversed = True

sketch13 = body.newObject("Sketcher::SketchObject", "Sketch012")
sketch13.AttachmentSupport = (doc.getObject("XY_Plane"), [""])
sketch13.MapMode = "FlatFace"
sketch13.AttachmentOffset = App.Placement(V(0, 0, 4), App.Rotation())
sketch13.addGeometry(Part.Circle(V(-75.756388, 41.652113, 0), V(0, 0, 1), 1.6), False)
sketch13.addGeometry(Part.Circle(V(-75.756388, 48.152113, 0), V(0, 0, 1), 1.6), False)
sketch13.addGeometry(Part.Circle(V(158.743612, 48.152113, 0), V(0, 0, 1), 1.6), False)
sketch13.addGeometry(Part.Circle(V(158.743612, 41.652113, 0), V(0, 0, 1), 1.6), False)
sketch13.addConstraint(Sketcher.Constraint("Equal", 0, 1))
sketch13.addConstraint(Sketcher.Constraint("Equal", 1, 2))
sketch13.addConstraint(Sketcher.Constraint("Equal", 2, 3))
sketch13.addConstraint(Sketcher.Constraint("Horizontal", 1, 3, 2, 3))
sketch13.addConstraint(Sketcher.Constraint("Horizontal", 0, 3, 3, 3))
sketch13.addConstraint(Sketcher.Constraint("Vertical", 0, 3, 1, 3))
sketch13.addConstraint(Sketcher.Constraint("Vertical", 2, 3, 3, 3))
sketch13.addConstraint(Sketcher.Constraint("Diameter", 0, 3.2))
sketch13.addConstraint(Sketcher.Constraint("DistanceY", 0, 3, 1, 3, 6.5))
sketch13.addConstraint(Sketcher.Constraint("DistanceX", 1, 3, 2, 3, 234.5))
sketch13.addConstraint(Sketcher.Constraint("DistanceX", 0, 3, -1, 1, 75.756388))
sketch13.addConstraint(Sketcher.Constraint("DistanceY", -1, 1, 0, 3, 41.652113))
sketch13.setExpression("Constraints[7]", "Params.sketch13_diameter")
doc.recompute()
hole7 = body.newObject("PartDesign::Hole", "Hole006")
hole7.Profile = sketch13
hole7.ThreadType = "None"
hole7.setExpression("Diameter", "Params.hole7_diameter")
hole7.DepthType = "ThroughAll"

doc.recompute()
